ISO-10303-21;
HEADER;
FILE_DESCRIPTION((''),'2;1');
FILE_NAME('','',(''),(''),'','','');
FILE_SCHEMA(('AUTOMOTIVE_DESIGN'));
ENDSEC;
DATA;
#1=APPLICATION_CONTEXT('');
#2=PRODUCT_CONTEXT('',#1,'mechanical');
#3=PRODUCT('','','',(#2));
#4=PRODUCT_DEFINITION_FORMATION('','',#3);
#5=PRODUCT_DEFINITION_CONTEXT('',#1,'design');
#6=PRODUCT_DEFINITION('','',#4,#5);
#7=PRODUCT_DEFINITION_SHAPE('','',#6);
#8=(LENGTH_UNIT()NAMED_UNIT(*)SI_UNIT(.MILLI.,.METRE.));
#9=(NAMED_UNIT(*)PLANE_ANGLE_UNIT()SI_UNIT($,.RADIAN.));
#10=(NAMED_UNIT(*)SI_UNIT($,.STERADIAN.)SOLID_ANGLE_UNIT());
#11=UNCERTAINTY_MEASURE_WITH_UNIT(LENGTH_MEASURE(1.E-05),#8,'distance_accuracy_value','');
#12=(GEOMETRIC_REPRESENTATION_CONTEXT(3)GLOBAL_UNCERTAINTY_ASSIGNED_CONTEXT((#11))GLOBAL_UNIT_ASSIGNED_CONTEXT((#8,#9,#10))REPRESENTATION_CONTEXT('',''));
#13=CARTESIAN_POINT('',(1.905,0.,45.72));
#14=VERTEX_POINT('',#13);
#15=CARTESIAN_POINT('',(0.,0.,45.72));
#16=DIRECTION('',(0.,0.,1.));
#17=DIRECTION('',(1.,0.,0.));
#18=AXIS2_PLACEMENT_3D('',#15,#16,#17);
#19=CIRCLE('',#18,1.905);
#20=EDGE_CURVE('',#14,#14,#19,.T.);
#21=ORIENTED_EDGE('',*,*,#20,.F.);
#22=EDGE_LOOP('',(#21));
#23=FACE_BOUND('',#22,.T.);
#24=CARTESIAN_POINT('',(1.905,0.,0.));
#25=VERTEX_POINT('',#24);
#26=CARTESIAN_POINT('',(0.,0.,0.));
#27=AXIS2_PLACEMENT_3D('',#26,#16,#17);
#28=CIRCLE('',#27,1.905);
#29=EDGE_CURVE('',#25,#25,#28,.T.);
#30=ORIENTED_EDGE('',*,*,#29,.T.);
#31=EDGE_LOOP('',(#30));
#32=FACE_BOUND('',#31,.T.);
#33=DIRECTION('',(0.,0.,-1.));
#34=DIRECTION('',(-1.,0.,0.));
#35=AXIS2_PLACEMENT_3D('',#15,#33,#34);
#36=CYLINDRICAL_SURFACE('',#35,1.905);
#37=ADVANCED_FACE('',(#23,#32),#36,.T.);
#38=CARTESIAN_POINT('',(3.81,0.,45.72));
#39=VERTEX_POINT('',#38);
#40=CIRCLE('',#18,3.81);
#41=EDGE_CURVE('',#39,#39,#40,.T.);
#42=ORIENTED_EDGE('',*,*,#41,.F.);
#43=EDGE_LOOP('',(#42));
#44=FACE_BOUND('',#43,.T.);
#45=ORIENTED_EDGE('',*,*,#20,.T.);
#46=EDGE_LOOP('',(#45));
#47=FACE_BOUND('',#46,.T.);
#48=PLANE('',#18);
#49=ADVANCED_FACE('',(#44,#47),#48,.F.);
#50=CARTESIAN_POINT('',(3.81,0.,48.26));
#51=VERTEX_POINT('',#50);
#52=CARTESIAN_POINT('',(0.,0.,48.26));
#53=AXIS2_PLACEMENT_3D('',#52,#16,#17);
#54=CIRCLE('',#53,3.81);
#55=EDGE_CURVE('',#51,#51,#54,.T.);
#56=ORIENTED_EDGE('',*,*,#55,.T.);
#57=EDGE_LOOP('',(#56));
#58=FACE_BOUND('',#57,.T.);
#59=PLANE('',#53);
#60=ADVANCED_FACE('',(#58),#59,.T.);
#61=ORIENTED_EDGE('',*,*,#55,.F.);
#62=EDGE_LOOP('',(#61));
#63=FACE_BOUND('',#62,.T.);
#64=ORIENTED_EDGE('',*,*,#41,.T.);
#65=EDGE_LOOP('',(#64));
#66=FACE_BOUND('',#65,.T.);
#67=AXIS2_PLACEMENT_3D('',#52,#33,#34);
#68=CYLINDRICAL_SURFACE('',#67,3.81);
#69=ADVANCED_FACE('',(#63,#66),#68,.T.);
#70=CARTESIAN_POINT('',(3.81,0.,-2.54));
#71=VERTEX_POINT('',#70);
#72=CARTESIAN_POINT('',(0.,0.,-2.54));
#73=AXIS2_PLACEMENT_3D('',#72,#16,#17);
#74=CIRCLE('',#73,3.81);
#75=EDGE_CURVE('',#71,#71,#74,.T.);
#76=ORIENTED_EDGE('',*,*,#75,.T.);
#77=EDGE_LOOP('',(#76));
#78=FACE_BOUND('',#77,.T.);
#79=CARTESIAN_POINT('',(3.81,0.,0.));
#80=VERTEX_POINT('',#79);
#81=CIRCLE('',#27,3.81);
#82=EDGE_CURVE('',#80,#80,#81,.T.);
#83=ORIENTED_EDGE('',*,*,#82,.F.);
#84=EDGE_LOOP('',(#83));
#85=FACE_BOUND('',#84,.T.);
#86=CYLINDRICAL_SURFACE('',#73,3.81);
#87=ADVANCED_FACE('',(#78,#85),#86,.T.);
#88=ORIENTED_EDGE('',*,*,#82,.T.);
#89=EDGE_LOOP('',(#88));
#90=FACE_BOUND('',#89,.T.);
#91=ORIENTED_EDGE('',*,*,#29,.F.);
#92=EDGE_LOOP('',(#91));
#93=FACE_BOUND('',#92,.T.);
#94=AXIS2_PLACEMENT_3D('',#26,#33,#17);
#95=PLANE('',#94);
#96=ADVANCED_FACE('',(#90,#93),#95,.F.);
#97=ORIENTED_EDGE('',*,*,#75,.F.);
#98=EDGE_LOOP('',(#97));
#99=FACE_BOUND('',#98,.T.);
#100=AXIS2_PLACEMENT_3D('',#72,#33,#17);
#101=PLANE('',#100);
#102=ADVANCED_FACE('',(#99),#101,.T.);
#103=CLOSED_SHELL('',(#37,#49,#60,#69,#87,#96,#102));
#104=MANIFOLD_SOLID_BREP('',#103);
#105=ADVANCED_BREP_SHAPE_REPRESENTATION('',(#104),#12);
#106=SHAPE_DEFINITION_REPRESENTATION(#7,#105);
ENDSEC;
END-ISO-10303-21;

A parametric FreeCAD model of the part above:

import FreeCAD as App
import Part
import Sketcher

V = App.Vector
Q = App.Units.Quantity

doc = App.newDocument("Part")
body = doc.addObject("PartDesign::Body", "Body")

sketch1 = body.newObject("Sketcher::SketchObject", "Sketch")
sketch1.AttachmentSupport = (doc.getObject("XY_Plane"), [""])
sketch1.MapMode = "FlatFace"
sketch1.addGeometry(Part.Circle(V(0, 0, 0), V(0, 0, 1), 1.9), False)
sketch1.addConstraint(Sketcher.Constraint("Coincident", 0, 3, -1, 1))
sketch1.addConstraint(Sketcher.Constraint("Diameter", 0, Q("0.15 in")))
pad1 = body.newObject("PartDesign::Pad", "Pad")
pad1.Profile = sketch1
pad1.Length = Q("1.8 in")

sketch2 = body.newObject("Sketcher::SketchObject", "Sketch001")
sketch2.AttachmentSupport = (doc.getObject("XY_Plane"), [""])
sketch2.MapMode = "FlatFace"
sketch2.AttachmentOffset = App.Placement(V(0, 0, 1.8 * 25.4), App.Rotation())
sketch2.addGeometry(Part.Circle(V(0, 0, 0), V(0, 0, 1), 3.8), False)
sketch2.addConstraint(Sketcher.Constraint("Coincident", 0, 3, -1, 1))
sketch2.addConstraint(Sketcher.Constraint("Diameter", 0, Q("0.3 in")))
pad2 = body.newObject("PartDesign::Pad", "Pad001")
pad2.Profile = sketch2
pad2.Length = Q("0.1 in")
doc.recompute()

datumplane = body.newObject("PartDesign::Plane", "DatumPlane")
datumplane.AttachmentSupport = (doc.getObject("XY_Plane"), [""])
datumplane.MapMode = "FlatFace"
datumplane.AttachmentOffset = App.Placement(V(0, 0, 0.9 * 25.4), App.Rotation())
mirrored = body.newObject("PartDesign::Mirrored", "Mirrored")
mirrored.Originals = [pad2]
mirrored.MirrorPlane = (datumplane, [""])
body.Tip = mirrored

doc.recompute()
